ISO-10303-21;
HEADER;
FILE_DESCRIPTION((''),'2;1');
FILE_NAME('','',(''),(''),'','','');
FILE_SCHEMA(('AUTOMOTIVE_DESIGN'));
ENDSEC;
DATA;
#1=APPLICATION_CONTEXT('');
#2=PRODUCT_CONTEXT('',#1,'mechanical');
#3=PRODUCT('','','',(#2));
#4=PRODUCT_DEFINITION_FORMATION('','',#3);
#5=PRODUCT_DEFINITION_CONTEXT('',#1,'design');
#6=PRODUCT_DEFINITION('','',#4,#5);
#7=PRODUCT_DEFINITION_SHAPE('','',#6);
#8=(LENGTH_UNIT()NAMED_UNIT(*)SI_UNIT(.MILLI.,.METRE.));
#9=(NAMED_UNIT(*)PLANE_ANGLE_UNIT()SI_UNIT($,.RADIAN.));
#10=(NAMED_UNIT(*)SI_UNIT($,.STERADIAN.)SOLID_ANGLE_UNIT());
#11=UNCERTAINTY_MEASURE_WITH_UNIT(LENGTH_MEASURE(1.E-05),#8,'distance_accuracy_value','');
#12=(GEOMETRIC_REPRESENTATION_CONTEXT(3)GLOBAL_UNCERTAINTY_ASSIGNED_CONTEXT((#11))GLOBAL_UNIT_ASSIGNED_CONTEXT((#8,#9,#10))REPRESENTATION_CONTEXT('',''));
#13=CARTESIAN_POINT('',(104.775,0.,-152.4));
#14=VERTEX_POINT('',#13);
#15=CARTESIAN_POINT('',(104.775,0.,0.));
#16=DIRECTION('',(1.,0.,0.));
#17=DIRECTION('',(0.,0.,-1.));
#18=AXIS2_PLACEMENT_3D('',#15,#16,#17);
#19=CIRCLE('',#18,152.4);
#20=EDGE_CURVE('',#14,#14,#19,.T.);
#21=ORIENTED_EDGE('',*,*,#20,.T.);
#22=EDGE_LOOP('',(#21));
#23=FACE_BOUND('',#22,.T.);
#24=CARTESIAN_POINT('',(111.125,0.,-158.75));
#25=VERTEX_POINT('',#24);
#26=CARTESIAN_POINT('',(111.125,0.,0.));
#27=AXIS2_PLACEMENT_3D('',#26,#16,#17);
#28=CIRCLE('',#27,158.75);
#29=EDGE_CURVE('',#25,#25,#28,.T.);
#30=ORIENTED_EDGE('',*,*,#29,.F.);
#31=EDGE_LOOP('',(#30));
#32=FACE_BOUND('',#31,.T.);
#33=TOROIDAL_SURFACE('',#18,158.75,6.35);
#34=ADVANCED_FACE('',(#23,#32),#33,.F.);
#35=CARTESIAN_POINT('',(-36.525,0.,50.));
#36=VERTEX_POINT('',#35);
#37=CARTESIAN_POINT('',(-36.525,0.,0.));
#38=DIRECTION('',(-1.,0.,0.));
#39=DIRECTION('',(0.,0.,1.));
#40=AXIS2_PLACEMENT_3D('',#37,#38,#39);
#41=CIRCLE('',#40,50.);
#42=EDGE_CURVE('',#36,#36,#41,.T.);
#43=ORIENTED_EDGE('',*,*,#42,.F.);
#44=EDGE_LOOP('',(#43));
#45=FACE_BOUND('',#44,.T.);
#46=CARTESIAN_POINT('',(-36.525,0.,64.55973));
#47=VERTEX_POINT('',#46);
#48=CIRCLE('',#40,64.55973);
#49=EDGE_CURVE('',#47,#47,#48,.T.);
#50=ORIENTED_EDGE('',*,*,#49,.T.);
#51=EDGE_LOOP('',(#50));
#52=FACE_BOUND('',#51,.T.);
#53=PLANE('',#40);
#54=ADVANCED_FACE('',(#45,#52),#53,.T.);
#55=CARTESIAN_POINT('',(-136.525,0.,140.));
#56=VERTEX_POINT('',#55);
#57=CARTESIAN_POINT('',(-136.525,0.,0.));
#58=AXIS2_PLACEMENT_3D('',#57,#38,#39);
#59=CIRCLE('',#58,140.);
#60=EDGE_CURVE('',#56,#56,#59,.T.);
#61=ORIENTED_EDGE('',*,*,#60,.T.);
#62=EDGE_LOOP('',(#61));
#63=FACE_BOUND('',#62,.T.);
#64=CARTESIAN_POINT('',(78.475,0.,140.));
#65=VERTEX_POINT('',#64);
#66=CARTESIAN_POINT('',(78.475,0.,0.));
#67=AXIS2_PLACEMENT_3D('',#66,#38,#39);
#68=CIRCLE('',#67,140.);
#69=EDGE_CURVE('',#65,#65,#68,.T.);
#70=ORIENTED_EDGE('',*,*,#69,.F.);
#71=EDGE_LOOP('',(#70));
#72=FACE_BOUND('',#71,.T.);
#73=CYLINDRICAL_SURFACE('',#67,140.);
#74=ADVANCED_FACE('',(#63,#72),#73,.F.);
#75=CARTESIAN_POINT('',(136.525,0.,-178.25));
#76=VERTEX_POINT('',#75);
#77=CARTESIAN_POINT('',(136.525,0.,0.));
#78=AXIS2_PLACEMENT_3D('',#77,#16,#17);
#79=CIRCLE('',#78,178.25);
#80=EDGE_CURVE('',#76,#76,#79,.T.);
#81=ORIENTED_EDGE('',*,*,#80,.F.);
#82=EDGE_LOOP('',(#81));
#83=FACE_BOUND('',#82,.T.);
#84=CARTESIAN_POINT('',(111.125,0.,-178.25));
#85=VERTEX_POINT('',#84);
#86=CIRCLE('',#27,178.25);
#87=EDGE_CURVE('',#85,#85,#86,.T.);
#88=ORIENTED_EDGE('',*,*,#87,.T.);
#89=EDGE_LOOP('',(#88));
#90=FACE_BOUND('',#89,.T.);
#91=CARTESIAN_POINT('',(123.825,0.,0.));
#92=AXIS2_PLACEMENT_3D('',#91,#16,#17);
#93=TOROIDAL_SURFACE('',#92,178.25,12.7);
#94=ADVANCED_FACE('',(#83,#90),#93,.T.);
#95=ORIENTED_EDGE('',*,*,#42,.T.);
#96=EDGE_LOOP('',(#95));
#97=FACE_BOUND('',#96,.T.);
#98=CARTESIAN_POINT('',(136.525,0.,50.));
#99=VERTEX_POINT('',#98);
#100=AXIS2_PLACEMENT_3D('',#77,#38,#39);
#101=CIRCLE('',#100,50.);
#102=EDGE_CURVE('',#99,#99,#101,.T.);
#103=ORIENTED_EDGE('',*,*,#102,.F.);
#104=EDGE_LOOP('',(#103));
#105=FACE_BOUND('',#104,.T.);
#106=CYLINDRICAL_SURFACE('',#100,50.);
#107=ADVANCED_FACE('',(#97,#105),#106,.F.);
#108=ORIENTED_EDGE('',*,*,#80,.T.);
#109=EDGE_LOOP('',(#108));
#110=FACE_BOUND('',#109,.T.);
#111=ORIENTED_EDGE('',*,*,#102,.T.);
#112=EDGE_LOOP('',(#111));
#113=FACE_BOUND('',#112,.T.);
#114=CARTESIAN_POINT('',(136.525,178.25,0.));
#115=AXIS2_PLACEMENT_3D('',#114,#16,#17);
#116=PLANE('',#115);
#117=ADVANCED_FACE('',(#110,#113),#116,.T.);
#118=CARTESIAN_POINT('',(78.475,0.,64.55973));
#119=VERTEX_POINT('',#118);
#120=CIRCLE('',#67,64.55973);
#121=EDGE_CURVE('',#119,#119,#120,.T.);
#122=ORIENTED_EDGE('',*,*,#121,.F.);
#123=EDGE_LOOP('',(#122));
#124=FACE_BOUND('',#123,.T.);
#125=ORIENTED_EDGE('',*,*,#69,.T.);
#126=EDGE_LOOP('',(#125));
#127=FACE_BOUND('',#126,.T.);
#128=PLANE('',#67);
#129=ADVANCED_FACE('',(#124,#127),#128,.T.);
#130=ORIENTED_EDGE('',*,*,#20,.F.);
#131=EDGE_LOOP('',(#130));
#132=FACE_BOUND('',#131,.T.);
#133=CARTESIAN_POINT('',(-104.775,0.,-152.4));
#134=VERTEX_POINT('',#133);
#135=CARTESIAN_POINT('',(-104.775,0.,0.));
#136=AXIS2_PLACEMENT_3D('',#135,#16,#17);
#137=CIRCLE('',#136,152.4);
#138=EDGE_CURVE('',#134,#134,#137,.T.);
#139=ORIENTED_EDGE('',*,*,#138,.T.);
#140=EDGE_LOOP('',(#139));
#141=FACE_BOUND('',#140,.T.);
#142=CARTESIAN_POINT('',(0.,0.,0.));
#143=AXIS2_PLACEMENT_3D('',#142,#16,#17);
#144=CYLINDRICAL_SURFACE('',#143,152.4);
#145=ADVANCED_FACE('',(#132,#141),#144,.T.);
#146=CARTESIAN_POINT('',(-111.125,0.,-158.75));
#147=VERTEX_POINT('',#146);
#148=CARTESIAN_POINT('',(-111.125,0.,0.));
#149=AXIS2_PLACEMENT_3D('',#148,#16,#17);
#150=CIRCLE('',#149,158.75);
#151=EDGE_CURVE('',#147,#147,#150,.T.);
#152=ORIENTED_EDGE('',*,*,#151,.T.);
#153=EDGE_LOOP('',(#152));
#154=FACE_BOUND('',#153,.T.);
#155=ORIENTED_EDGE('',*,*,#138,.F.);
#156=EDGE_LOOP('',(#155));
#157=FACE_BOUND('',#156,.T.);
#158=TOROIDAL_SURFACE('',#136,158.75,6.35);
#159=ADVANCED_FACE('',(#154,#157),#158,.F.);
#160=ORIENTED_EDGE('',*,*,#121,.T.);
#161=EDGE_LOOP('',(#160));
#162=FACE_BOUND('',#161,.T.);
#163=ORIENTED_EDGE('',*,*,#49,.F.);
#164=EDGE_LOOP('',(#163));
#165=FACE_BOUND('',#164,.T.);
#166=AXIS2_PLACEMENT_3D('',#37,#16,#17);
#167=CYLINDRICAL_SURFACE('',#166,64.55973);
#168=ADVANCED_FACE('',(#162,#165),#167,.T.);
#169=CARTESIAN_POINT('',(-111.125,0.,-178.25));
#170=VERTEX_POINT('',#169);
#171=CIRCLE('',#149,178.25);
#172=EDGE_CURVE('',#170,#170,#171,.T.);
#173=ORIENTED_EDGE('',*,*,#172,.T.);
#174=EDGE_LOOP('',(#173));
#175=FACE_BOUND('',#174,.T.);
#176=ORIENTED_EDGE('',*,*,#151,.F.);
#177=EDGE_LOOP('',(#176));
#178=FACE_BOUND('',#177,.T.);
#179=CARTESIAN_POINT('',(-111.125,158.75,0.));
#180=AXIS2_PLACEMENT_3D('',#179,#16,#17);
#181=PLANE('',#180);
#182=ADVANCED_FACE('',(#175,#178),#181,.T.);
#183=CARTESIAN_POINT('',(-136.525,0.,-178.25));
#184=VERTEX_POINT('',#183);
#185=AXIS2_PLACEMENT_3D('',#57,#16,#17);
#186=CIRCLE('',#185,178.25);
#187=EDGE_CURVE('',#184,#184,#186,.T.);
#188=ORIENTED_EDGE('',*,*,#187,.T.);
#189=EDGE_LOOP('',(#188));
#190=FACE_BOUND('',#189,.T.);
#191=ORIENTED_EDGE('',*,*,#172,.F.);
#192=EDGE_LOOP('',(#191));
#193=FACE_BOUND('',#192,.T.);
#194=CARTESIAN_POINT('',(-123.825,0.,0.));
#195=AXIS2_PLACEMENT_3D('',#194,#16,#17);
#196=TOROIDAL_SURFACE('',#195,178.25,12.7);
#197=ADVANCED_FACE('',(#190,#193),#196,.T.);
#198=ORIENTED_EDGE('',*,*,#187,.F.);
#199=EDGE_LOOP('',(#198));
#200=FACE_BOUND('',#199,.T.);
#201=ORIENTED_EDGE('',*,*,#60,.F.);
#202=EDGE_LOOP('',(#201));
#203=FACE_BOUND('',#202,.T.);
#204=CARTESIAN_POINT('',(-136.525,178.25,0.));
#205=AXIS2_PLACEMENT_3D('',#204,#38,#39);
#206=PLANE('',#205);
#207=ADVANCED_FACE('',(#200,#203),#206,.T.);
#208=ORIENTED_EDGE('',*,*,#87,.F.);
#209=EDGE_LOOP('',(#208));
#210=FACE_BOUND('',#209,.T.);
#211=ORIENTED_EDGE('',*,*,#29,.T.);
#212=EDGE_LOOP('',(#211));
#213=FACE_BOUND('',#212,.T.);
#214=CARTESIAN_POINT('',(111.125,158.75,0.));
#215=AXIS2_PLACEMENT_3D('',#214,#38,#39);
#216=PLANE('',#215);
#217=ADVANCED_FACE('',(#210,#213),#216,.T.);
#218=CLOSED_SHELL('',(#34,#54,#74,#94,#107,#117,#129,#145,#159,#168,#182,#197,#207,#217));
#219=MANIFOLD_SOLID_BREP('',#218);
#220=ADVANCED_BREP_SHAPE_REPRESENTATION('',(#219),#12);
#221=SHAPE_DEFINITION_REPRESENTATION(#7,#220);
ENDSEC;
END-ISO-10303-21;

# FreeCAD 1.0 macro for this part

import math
import FreeCAD as App
import Part
import Sketcher
from FreeCAD import Vector

doc = App.newDocument("Part")
params = doc.addObject("Spreadsheet::Sheet", "Params")
for row, (alias, value) in enumerate([
    ("sketch1_radius", "12.7 mm"),
    ("sketch1_radius2", "6.35 mm"),
    ("sketch1_height", "19.5 mm"),
    ("sketch1_width", "209.55 mm"),
    ("sketch1_height2", "178.25 mm"),
    ("revolution_angle", "360 deg"),
    ("sketch2_diameter", "100 mm"),
    ("sketch3_diameter", "280 mm"),
    ("pocket2_length", "215 mm"),
    ("sketch4_diameter", "100 mm"),
    ("pad1_length", "115 mm"),
], start=1):
    params.set(f"A{row}", alias)
    params.set(f"B{row}", "=" + value)
    params.setAlias(f"B{row}", alias)

body = doc.addObject("PartDesign::Body", "Body")

sketch1 = body.newObject("Sketcher::SketchObject", "Sketch")
sketch1.AttachmentSupport = (doc.getObject("XY_Plane"), [""])
sketch1.MapMode = "FlatFace"
sketch1.addGeometry(Part.LineSegment(Vector(105, 152, 0), Vector(-105, 152, 0)), False)
sketch1.addGeometry(Part.ArcOfCircle(Part.Circle(Vector(-105, 159, 0), Vector(0, 0, 1), 6), math.radians(180), math.radians(270)), False)
sketch1.addGeometry(Part.LineSegment(Vector(-111, 159, 0), Vector(-111, 178, 0)), False)
sketch1.addGeometry(Part.ArcOfCircle(Part.Circle(Vector(-124, 178, 0), Vector(0, 0, 1), 13), math.radians(0), math.radians(180)), False)
sketch1.addGeometry(Part.LineSegment(Vector(-137, 178, 0), Vector(-137, 0, 0)), False)
sketch1.addGeometry(Part.LineSegment(Vector(-137, 0, 0), Vector(137, 0, 0)), False)
sketch1.addGeometry(Part.LineSegment(Vector(137, 0, 0), Vector(137, 178, 0)), False)
sketch1.addGeometry(Part.ArcOfCircle(Part.Circle(Vector(124, 178, 0), Vector(0, 0, 1), 13), math.radians(0), math.radians(180)), False)
sketch1.addGeometry(Part.LineSegment(Vector(111, 178, 0), Vector(111, 159, 0)), False)
sketch1.addGeometry(Part.ArcOfCircle(Part.Circle(Vector(105, 159, 0), Vector(0, 0, 1), 6), math.radians(-90), math.radians(0)), False)
sketch1.addConstraint(Sketcher.Constraint("Tangent", 0, 2, 1, 2))
sketch1.addConstraint(Sketcher.Constraint("Tangent", 1, 1, 2, 1))
sketch1.addConstraint(Sketcher.Constraint("Tangent", 2, 2, 3, 1))
sketch1.addConstraint(Sketcher.Constraint("Tangent", 3, 2, 4, 1))
sketch1.addConstraint(Sketcher.Constraint("Coincident", 4, 2, 5, 1))
sketch1.addConstraint(Sketcher.Constraint("Coincident", 5, 2, 6, 1))
sketch1.addConstraint(Sketcher.Constraint("Tangent", 6, 2, 7, 1))
sketch1.addConstraint(Sketcher.Constraint("Tangent", 7, 2, 8, 1))
sketch1.addConstraint(Sketcher.Constraint("Tangent", 8, 2, 9, 2))
sketch1.addConstraint(Sketcher.Constraint("Tangent", 9, 1, 0, 1))
sketch1.addConstraint(Sketcher.Constraint("Horizontal", 0))
sketch1.addConstraint(Sketcher.Constraint("Vertical", 2))
sketch1.addConstraint(Sketcher.Constraint("Vertical", 4))
sketch1.addConstraint(Sketcher.Constraint("Horizontal", 5))
sketch1.addConstraint(Sketcher.Constraint("Vertical", 6))
sketch1.addConstraint(Sketcher.Constraint("Vertical", 8))
sketch1.addConstraint(Sketcher.Constraint("Equal", 3, 7))
sketch1.addConstraint(Sketcher.Constraint("Equal", 1, 9))
sketch1.addConstraint(Sketcher.Constraint("Symmetric", 4, 2, 5, 2, -1, 1))
sketch1.addConstraint(Sketcher.Constraint("Horizontal", 3, 3, 7, 3))
sketch1.addConstraint(Sketcher.Constraint("Radius", 3, 12.7))
sketch1.addConstraint(Sketcher.Constraint("Radius", 1, 6.35))
sketch1.addConstraint(Sketcher.Constraint("DistanceY", 2, 1, 2, 2, 19.5))
sketch1.addConstraint(Sketcher.Constraint("DistanceX", 0, 2, 0, 1, 209.55))
sketch1.addConstraint(Sketcher.Constraint("DistanceY", 4, 2, 4, 1, 178.25))
sketch1.setExpression("Constraints[20]", "Params.sketch1_radius")
sketch1.setExpression("Constraints[21]", "Params.sketch1_radius2")
sketch1.setExpression("Constraints[22]", "Params.sketch1_height")
sketch1.setExpression("Constraints[23]", "Params.sketch1_width")
sketch1.setExpression("Constraints[24]", "Params.sketch1_height2")
revolution = body.newObject("PartDesign::Revolution", "Revolution")
revolution.Profile = sketch1
revolution.ReferenceAxis = (sketch1, ["H_Axis"])
revolution.setExpression("Angle", "Params.revolution_angle")

sketch2 = body.newObject("Sketcher::SketchObject", "Sketch001")
sketch2.AttachmentSupport = (doc.getObject("YZ_Plane"), [""])
sketch2.MapMode = "FlatFace"
sketch2.AttachmentOffset = App.Placement(Vector(0, 0, -136.525), App.Rotation())
sketch2.addGeometry(Part.Circle(Vector(0, 0, 0), Vector(0, 0, 1), 50), False)
sketch2.addConstraint(Sketcher.Constraint("Coincident", 0, 3, -1, 1))
sketch2.addConstraint(Sketcher.Constraint("Diameter", 0, 100.0))
sketch2.setExpression("Constraints[1]", "Params.sketch2_diameter")
pocket1 = body.newObject("PartDesign::Pocket", "Pocket")
pocket1.Profile = sketch2
pocket1.Type = "ThroughAll"
pocket1.Reversed = True

sketch3 = body.newObject("Sketcher::SketchObject", "Sketch002")
sketch3.AttachmentSupport = (doc.getObject("YZ_Plane"), [""])
sketch3.MapMode = "FlatFace"
sketch3.AttachmentOffset = App.Placement(Vector(0, 0, -136.525), App.Rotation())
sketch3.addGeometry(Part.Circle(Vector(0, 0, 0), Vector(0, 0, 1), 140), False)
sketch3.addConstraint(Sketcher.Constraint("Coincident", 0, 3, -1, 1))
sketch3.addConstraint(Sketcher.Constraint("Diameter", 0, 280.0))
sketch3.setExpression("Constraints[1]", "Params.sketch3_diameter")
pocket2 = body.newObject("PartDesign::Pocket", "Pocket001")
pocket2.Profile = sketch3
pocket2.setExpression("Length", "Params.pocket2_length")
pocket2.Reversed = True

sketch4 = body.newObject("Sketcher::SketchObject", "Sketch003")
sketch4.AttachmentSupport = (doc.getObject("YZ_Plane"), [""])
sketch4.MapMode = "FlatFace"
sketch4.AttachmentOffset = App.Placement(Vector(0, 0, -36.525), App.Rotation())
sketch4.addGeometry(Part.Circle(Vector(0, 0, 0), Vector(0, 0, 1), 65), False)
sketch4.addGeometry(Part.Circle(Vector(0, 0, 0), Vector(0, 0, 1), 50), False)
sketch4.addConstraint(Sketcher.Constraint("Coincident", 0, 3, -1, 1))
sketch4.addConstraint(Sketcher.Constraint("Coincident", 1, 3, -1, 1))
sketch4.addConstraint(Sketcher.Constraint("Diameter", 1, 100.0))
sketch4.addConstraint(Sketcher.Constraint("Diameter", 0, 129.11946))
sketch4.setExpression("Constraints[2]", "Params.sketch4_diameter")
pad1 = body.newObject("PartDesign::Pad", "Pad")
pad1.Profile = sketch4
pad1.setExpression("Length", "Params.pad1_length")

doc.recompute()
